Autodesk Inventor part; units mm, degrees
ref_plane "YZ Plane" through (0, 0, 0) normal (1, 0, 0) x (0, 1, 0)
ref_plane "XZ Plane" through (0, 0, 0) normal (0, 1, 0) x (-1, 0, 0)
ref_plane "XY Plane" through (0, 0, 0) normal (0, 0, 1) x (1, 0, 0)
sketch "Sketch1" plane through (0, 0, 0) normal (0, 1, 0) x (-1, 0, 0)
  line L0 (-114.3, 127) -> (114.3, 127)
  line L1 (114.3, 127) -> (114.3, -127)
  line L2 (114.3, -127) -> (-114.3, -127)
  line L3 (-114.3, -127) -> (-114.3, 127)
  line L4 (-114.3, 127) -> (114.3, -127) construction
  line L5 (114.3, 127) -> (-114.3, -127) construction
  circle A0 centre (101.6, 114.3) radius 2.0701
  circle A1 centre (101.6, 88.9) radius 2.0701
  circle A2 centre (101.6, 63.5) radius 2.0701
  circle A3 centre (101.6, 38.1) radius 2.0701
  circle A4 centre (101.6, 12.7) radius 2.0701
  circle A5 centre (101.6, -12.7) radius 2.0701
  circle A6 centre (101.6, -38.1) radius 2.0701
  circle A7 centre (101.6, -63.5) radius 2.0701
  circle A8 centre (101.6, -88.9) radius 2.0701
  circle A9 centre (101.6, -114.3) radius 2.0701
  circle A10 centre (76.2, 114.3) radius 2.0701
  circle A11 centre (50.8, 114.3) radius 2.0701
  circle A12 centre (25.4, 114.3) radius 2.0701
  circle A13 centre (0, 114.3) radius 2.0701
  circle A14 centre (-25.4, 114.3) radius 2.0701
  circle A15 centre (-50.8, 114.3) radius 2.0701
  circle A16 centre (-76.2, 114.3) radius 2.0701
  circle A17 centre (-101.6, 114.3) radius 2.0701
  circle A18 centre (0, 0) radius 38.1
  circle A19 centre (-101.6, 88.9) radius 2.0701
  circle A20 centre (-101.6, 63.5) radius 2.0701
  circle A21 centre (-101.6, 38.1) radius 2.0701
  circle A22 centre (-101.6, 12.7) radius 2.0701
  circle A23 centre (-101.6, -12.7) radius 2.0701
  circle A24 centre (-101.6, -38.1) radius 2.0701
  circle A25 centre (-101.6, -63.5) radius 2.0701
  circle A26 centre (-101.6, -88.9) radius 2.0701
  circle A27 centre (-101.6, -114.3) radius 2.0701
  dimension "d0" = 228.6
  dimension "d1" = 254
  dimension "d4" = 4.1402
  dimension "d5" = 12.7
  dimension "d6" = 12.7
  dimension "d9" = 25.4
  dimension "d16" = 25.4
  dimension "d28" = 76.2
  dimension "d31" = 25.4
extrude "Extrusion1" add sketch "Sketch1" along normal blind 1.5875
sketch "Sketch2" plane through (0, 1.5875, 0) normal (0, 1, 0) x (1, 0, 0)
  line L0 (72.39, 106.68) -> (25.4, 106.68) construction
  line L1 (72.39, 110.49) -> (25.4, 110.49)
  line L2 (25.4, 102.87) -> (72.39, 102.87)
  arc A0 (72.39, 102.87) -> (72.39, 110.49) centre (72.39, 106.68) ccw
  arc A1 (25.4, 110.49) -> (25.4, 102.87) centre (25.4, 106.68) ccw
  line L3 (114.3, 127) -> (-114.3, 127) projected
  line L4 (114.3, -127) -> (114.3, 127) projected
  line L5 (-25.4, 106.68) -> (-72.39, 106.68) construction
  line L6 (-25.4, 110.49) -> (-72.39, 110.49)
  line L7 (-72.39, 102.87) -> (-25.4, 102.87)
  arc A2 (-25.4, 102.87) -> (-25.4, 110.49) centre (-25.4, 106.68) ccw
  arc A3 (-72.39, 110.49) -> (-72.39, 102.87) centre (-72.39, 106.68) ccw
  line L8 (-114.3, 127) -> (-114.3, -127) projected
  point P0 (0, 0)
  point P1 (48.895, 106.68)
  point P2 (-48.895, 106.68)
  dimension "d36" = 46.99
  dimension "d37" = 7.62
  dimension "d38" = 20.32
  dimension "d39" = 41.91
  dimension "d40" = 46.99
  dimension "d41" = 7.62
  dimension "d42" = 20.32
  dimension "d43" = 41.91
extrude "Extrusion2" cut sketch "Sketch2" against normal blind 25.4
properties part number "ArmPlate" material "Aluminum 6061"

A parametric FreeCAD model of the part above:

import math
import FreeCAD as App
import Part
import Sketcher
Q = App.Units.Quantity

doc = App.newDocument("Part")
params = doc.addObject("Spreadsheet::Sheet", "Params")
for row, (alias, value) in enumerate([
    ("sketch1_diameter", "3 in"),
    ("sketch1_width", "9 in"),
    ("sketch1_height", "10 in"),
    ("sketch1_diameter2", "0.163 in"),
    ("pad1_length", "0.0625 in"),
    ("sketch2_radius", "0.15 in"),
    ("sketch2_width", "1.85 in"),
    ("pocket1_length", "1 in"),
], start=1):
    params.set(f"A{row}", alias)
    params.set(f"B{row}", "=" + value)
    params.setAlias(f"B{row}", alias)

body = doc.addObject("PartDesign::Body", "Body")

# Sketch on XZ plane
sketch1 = body.newObject("Sketcher::SketchObject", "Sketch")
sketch1.AttachmentSupport = (doc.getObject("XZ_Plane"), [""])
sketch1.MapMode = "FlatFace"
sketch1.addGeometry([
    Part.LineSegment(App.Vector(-114.3, 127, 0), App.Vector(114.3, 127, 0)),  # 0
    Part.LineSegment(App.Vector(114.3, 127, 0), App.Vector(114.3, -127, 0)),  # 1
    Part.LineSegment(App.Vector(114.3, -127, 0), App.Vector(-114.3, -127, 0)),  # 2
    Part.LineSegment(App.Vector(-114.3, -127, 0), App.Vector(-114.3, 127, 0)),  # 3
    Part.Circle(App.Vector(101.6, -114.3, 0), App.Vector(0, 0, 1), 2.0701),  # 4
    Part.Circle(App.Vector(101.6, -88.9, 0), App.Vector(0, 0, 1), 2.0701),  # 5
    Part.Circle(App.Vector(101.6, -63.5, 0), App.Vector(0, 0, 1), 2.0701),  # 6
    Part.Circle(App.Vector(101.6, -38.1, 0), App.Vector(0, 0, 1), 2.0701),  # 7
    Part.Circle(App.Vector(101.6, -12.7, 0), App.Vector(0, 0, 1), 2.0701),  # 8
    Part.Circle(App.Vector(-101.6, -114.3, 0), App.Vector(0, 0, 1), 2.0701),  # 9
    Part.Circle(App.Vector(-101.6, -88.9, 0), App.Vector(0, 0, 1), 2.0701),  # 10
    Part.Circle(App.Vector(-101.6, -63.5, 0), App.Vector(0, 0, 1), 2.0701),  # 11
    Part.Circle(App.Vector(-101.6, -38.1, 0), App.Vector(0, 0, 1), 2.0701),  # 12
    Part.Circle(App.Vector(-101.6, -12.7, 0), App.Vector(0, 0, 1), 2.0701),  # 13
    Part.Circle(App.Vector(101.6, 12.7, 0), App.Vector(0, 0, 1), 2.0701),  # 14
    Part.Circle(App.Vector(101.6, 38.1, 0), App.Vector(0, 0, 1), 2.0701),  # 15
    Part.Circle(App.Vector(101.6, 63.5, 0), App.Vector(0, 0, 1), 2.0701),  # 16
    Part.Circle(App.Vector(101.6, 88.9, 0), App.Vector(0, 0, 1), 2.0701),  # 17
    Part.Circle(App.Vector(101.6, 114.3, 0), App.Vector(0, 0, 1), 2.0701),  # 18
    Part.Circle(App.Vector(76.2, 114.3, 0), App.Vector(0, 0, 1), 2.0701),  # 19
    Part.Circle(App.Vector(50.8, 114.3, 0), App.Vector(0, 0, 1), 2.0701),  # 20
    Part.Circle(App.Vector(25.4, 114.3, 0), App.Vector(0, 0, 1), 2.0701),  # 21
    Part.Circle(App.Vector(0, 0, 0), App.Vector(0, 0, 1), 38.1),  # 22
    Part.Circle(App.Vector(-101.6, 12.7, 0), App.Vector(0, 0, 1), 2.0701),  # 23
    Part.Circle(App.Vector(-101.6, 38.1, 0), App.Vector(0, 0, 1), 2.0701),  # 24
    Part.Circle(App.Vector(0, 114.3, 0), App.Vector(0, 0, 1), 2.0701),  # 25
    Part.Circle(App.Vector(-25.4, 114.3, 0), App.Vector(0, 0, 1), 2.0701),  # 26
    Part.Circle(App.Vector(-50.8, 114.3, 0), App.Vector(0, 0, 1), 2.0701),  # 27
    Part.Circle(App.Vector(-101.6, 63.5, 0), App.Vector(0, 0, 1), 2.0701),  # 28
    Part.Circle(App.Vector(-101.6, 88.9, 0), App.Vector(0, 0, 1), 2.0701),  # 29
    Part.Circle(App.Vector(-76.2, 114.3, 0), App.Vector(0, 0, 1), 2.0701),  # 30
    Part.Circle(App.Vector(-101.6, 114.3, 0), App.Vector(0, 0, 1), 2.0701),  # 31
], False)
sketch1.addConstraint([
    Sketcher.Constraint("Coincident", 0, 2, 1, 1),
    Sketcher.Constraint("Coincident", 1, 2, 2, 1),
    Sketcher.Constraint("Coincident", 2, 2, 3, 1),
    Sketcher.Constraint("Coincident", 3, 2, 0, 1),
    Sketcher.Constraint("Horizontal", 0),
    Sketcher.Constraint("Vertical", 1),
    Sketcher.Constraint("Horizontal", 2),
    Sketcher.Constraint("Vertical", 3),
    Sketcher.Constraint("Coincident", 22, 3, -1, 1),
    Sketcher.Constraint("Equal", 4, 5),
    Sketcher.Constraint("Equal", 5, 6),
    Sketcher.Constraint("Equal", 6, 7),
    Sketcher.Constraint("Equal", 7, 8),
    Sketcher.Constraint("Equal", 8, 9),
    Sketcher.Constraint("Equal", 9, 10),
    Sketcher.Constraint("Equal", 10, 11),
    Sketcher.Constraint("Equal", 11, 12),
    Sketcher.Constraint("Equal", 12, 13),
    Sketcher.Constraint("Equal", 13, 14),
    Sketcher.Constraint("Equal", 14, 15),
    Sketcher.Constraint("Equal", 15, 16),
    Sketcher.Constraint("Equal", 16, 17),
    Sketcher.Constraint("Equal", 17, 18),
    Sketcher.Constraint("Equal", 18, 19),
    Sketcher.Constraint("Equal", 19, 20),
    Sketcher.Constraint("Equal", 20, 21),
    Sketcher.Constraint("Equal", 21, 23),
    Sketcher.Constraint("Equal", 23, 24),
    Sketcher.Constraint("Equal", 24, 25),
    Sketcher.Constraint("Equal", 25, 26),
    Sketcher.Constraint("Equal", 26, 27),
    Sketcher.Constraint("Equal", 27, 28),
    Sketcher.Constraint("Equal", 28, 29),
    Sketcher.Constraint("Equal", 29, 30),
    Sketcher.Constraint("Equal", 30, 31),
    Sketcher.Constraint("Symmetric", 13, 3, 14, 3, -1, 1),
    Sketcher.Constraint("Symmetric", 12, 3, 15, 3, -1, 1),
    Sketcher.Constraint("Symmetric", 11, 3, 16, 3, -1, 1),
    Sketcher.Constraint("Symmetric", 10, 3, 17, 3, -1, 1),
    Sketcher.Constraint("Symmetric", 9, 3, 18, 3, -1, 1),
    Sketcher.Constraint("Symmetric", 8, 3, 23, 3, -1, 1),
    Sketcher.Constraint("Symmetric", 7, 3, 24, 3, -1, 1),
    Sketcher.Constraint("Symmetric", 6, 3, 28, 3, -1, 1),
    Sketcher.Constraint("Symmetric", 5, 3, 29, 3, -1, 1),
    Sketcher.Constraint("Symmetric", 4, 3, 31, 3, -1, 1),
    Sketcher.Constraint("Symmetric", 0, 2, 2, 2, -1, 1),
    Sketcher.Constraint("Symmetric", 4, 3, 9, 3, -2),
    Sketcher.Constraint("Symmetric", 5, 3, 10, 3, -2),
    Sketcher.Constraint("Symmetric", 6, 3, 11, 3, -2),
    Sketcher.Constraint("Symmetric", 7, 3, 12, 3, -2),
    Sketcher.Constraint("Symmetric", 8, 3, 13, 3, -2),
    Sketcher.Constraint("Symmetric", 21, 3, 26, 3, -2),
    Sketcher.Constraint("Symmetric", 20, 3, 27, 3, -2),
    Sketcher.Constraint("Symmetric", 19, 3, 30, 3, -2),
    Sketcher.Constraint("PointOnObject", 25, 3, -2),
    Sketcher.Constraint("Horizontal", 18, 3, 19, 3),
    Sketcher.Constraint("Horizontal", 19, 3, 20, 3),
    Sketcher.Constraint("Horizontal", 20, 3, 21, 3),
    Sketcher.Constraint("Horizontal", 21, 3, 25, 3),
    Sketcher.Constraint("Vertical", 4, 3, 5, 3),
    Sketcher.Constraint("Vertical", 5, 3, 6, 3),
    Sketcher.Constraint("Vertical", 6, 3, 7, 3),
    Sketcher.Constraint("Vertical", 7, 3, 8, 3),
    Sketcher.Constraint("Diameter", 22, Q("3 in")),
    Sketcher.Constraint("DistanceX", 0, 1, 0, 2, Q("9 in")),
    Sketcher.Constraint("DistanceY", 1, 2, 1, 1, Q("10 in")),
    Sketcher.Constraint("Diameter", 4, Q("0.163 in")),
    Sketcher.Constraint("DistanceX", -1, 1, 19, 3, Q("3 in")),
    Sketcher.Constraint("DistanceX", -1, 1, 21, 3, Q("1 in")),
    Sketcher.Constraint("DistanceY", 4, 3, 5, 3, Q("1 in")),
    Sketcher.Constraint("DistanceY", 5, 3, 6, 3, Q("1 in")),
    Sketcher.Constraint("DistanceY", 6, 3, 7, 3, Q("1 in")),
    Sketcher.Constraint("DistanceY", 7, 3, 8, 3, Q("1 in")),
    Sketcher.Constraint("DistanceY", 8, 3, 14, 3, Q("1 in")),
    Sketcher.Constraint("DistanceX", 19, 3, 18, 3, Q("1 in")),
    Sketcher.Constraint("DistanceX", 20, 3, 19, 3, Q("1 in")),
])
sketch1.setExpression("Constraints[63]", "Params.sketch1_diameter")
sketch1.setExpression("Constraints[64]", "Params.sketch1_width")
sketch1.setExpression("Constraints[65]", "Params.sketch1_height")
sketch1.setExpression("Constraints[66]", "Params.sketch1_diameter2")
pad1 = body.newObject("PartDesign::Pad", "Pad")
pad1.Profile = sketch1
pad1.setExpression("Length", "Params.pad1_length")
pad1.Reversed = True

# Sketch on XZ plane
sketch2 = body.newObject("Sketcher::SketchObject", "Sketch001")
sketch2.AttachmentSupport = (doc.getObject("XZ_Plane"), [""])
sketch2.MapMode = "FlatFace"
sketch2.AttachmentOffset = App.Placement(App.Vector(0, 0, -0.0625 * 25.4), App.Rotation())
sketch2.addGeometry([
    Part.ArcOfCircle(Part.Circle(App.Vector(72.39, -106.68, 0), App.Vector(0, 0, 1), 3.81), math.radians(-90), math.radians(90)),  # 0
    Part.LineSegment(App.Vector(72.39, -110.49, 0), App.Vector(25.4, -110.49, 0)),  # 1
    Part.ArcOfCircle(Part.Circle(App.Vector(25.4, -106.68, 0), App.Vector(0, 0, 1), 3.81), math.radians(90), math.radians(270)),  # 2
    Part.LineSegment(App.Vector(25.4, -102.87, 0), App.Vector(72.39, -102.87, 0)),  # 3
    Part.ArcOfCircle(Part.Circle(App.Vector(-25.4, -106.68, 0), App.Vector(0, 0, 1), 3.81), math.radians(-90), math.radians(90)),  # 4
    Part.LineSegment(App.Vector(-25.4, -110.49, 0), App.Vector(-72.39, -110.49, 0)),  # 5
    Part.ArcOfCircle(Part.Circle(App.Vector(-72.39, -106.68, 0), App.Vector(0, 0, 1), 3.81), math.radians(90), math.radians(270)),  # 6
    Part.LineSegment(App.Vector(-72.39, -102.87, 0), App.Vector(-25.4, -102.87, 0)),  # 7
], False)
sketch2.addConstraint([
    Sketcher.Constraint("Tangent", 0, 1, 1, 1),
    Sketcher.Constraint("Tangent", 1, 2, 2, 2),
    Sketcher.Constraint("Tangent", 2, 1, 3, 1),
    Sketcher.Constraint("Tangent", 3, 2, 0, 2),
    Sketcher.Constraint("Tangent", 4, 1, 5, 1),
    Sketcher.Constraint("Tangent", 5, 2, 6, 2),
    Sketcher.Constraint("Tangent", 6, 1, 7, 1),
    Sketcher.Constraint("Tangent", 7, 2, 4, 2),
    Sketcher.Constraint("Horizontal", 1),
    Sketcher.Constraint("Horizontal", 3),
    Sketcher.Constraint("Horizontal", 5),
    Sketcher.Constraint("Horizontal", 7),
    Sketcher.Constraint("Equal", 2, 4),
    Sketcher.Constraint("Symmetric", 2, 3, 4, 3, -2),
    Sketcher.Constraint("Equal", 3, 5),
    Sketcher.Constraint("Radius", 0, Q("0.15 in")),
    Sketcher.Constraint("DistanceX", 1, 2, 1, 1, Q("1.85 in")),
    Sketcher.Constraint("DistanceX", -1, 1, 2, 3, Q("1 in")),
    Sketcher.Constraint("DistanceY", 0, 3, -1, 1, Q("4.2 in")),
])
sketch2.setExpression("Constraints[15]", "Params.sketch2_radius")
sketch2.setExpression("Constraints[16]", "Params.sketch2_width")
pocket1 = body.newObject("PartDesign::Pocket", "Pocket")
pocket1.Profile = sketch2
pocket1.setExpression("Length", "Params.pocket1_length")
pocket1.Reversed = True

doc.recompute()
